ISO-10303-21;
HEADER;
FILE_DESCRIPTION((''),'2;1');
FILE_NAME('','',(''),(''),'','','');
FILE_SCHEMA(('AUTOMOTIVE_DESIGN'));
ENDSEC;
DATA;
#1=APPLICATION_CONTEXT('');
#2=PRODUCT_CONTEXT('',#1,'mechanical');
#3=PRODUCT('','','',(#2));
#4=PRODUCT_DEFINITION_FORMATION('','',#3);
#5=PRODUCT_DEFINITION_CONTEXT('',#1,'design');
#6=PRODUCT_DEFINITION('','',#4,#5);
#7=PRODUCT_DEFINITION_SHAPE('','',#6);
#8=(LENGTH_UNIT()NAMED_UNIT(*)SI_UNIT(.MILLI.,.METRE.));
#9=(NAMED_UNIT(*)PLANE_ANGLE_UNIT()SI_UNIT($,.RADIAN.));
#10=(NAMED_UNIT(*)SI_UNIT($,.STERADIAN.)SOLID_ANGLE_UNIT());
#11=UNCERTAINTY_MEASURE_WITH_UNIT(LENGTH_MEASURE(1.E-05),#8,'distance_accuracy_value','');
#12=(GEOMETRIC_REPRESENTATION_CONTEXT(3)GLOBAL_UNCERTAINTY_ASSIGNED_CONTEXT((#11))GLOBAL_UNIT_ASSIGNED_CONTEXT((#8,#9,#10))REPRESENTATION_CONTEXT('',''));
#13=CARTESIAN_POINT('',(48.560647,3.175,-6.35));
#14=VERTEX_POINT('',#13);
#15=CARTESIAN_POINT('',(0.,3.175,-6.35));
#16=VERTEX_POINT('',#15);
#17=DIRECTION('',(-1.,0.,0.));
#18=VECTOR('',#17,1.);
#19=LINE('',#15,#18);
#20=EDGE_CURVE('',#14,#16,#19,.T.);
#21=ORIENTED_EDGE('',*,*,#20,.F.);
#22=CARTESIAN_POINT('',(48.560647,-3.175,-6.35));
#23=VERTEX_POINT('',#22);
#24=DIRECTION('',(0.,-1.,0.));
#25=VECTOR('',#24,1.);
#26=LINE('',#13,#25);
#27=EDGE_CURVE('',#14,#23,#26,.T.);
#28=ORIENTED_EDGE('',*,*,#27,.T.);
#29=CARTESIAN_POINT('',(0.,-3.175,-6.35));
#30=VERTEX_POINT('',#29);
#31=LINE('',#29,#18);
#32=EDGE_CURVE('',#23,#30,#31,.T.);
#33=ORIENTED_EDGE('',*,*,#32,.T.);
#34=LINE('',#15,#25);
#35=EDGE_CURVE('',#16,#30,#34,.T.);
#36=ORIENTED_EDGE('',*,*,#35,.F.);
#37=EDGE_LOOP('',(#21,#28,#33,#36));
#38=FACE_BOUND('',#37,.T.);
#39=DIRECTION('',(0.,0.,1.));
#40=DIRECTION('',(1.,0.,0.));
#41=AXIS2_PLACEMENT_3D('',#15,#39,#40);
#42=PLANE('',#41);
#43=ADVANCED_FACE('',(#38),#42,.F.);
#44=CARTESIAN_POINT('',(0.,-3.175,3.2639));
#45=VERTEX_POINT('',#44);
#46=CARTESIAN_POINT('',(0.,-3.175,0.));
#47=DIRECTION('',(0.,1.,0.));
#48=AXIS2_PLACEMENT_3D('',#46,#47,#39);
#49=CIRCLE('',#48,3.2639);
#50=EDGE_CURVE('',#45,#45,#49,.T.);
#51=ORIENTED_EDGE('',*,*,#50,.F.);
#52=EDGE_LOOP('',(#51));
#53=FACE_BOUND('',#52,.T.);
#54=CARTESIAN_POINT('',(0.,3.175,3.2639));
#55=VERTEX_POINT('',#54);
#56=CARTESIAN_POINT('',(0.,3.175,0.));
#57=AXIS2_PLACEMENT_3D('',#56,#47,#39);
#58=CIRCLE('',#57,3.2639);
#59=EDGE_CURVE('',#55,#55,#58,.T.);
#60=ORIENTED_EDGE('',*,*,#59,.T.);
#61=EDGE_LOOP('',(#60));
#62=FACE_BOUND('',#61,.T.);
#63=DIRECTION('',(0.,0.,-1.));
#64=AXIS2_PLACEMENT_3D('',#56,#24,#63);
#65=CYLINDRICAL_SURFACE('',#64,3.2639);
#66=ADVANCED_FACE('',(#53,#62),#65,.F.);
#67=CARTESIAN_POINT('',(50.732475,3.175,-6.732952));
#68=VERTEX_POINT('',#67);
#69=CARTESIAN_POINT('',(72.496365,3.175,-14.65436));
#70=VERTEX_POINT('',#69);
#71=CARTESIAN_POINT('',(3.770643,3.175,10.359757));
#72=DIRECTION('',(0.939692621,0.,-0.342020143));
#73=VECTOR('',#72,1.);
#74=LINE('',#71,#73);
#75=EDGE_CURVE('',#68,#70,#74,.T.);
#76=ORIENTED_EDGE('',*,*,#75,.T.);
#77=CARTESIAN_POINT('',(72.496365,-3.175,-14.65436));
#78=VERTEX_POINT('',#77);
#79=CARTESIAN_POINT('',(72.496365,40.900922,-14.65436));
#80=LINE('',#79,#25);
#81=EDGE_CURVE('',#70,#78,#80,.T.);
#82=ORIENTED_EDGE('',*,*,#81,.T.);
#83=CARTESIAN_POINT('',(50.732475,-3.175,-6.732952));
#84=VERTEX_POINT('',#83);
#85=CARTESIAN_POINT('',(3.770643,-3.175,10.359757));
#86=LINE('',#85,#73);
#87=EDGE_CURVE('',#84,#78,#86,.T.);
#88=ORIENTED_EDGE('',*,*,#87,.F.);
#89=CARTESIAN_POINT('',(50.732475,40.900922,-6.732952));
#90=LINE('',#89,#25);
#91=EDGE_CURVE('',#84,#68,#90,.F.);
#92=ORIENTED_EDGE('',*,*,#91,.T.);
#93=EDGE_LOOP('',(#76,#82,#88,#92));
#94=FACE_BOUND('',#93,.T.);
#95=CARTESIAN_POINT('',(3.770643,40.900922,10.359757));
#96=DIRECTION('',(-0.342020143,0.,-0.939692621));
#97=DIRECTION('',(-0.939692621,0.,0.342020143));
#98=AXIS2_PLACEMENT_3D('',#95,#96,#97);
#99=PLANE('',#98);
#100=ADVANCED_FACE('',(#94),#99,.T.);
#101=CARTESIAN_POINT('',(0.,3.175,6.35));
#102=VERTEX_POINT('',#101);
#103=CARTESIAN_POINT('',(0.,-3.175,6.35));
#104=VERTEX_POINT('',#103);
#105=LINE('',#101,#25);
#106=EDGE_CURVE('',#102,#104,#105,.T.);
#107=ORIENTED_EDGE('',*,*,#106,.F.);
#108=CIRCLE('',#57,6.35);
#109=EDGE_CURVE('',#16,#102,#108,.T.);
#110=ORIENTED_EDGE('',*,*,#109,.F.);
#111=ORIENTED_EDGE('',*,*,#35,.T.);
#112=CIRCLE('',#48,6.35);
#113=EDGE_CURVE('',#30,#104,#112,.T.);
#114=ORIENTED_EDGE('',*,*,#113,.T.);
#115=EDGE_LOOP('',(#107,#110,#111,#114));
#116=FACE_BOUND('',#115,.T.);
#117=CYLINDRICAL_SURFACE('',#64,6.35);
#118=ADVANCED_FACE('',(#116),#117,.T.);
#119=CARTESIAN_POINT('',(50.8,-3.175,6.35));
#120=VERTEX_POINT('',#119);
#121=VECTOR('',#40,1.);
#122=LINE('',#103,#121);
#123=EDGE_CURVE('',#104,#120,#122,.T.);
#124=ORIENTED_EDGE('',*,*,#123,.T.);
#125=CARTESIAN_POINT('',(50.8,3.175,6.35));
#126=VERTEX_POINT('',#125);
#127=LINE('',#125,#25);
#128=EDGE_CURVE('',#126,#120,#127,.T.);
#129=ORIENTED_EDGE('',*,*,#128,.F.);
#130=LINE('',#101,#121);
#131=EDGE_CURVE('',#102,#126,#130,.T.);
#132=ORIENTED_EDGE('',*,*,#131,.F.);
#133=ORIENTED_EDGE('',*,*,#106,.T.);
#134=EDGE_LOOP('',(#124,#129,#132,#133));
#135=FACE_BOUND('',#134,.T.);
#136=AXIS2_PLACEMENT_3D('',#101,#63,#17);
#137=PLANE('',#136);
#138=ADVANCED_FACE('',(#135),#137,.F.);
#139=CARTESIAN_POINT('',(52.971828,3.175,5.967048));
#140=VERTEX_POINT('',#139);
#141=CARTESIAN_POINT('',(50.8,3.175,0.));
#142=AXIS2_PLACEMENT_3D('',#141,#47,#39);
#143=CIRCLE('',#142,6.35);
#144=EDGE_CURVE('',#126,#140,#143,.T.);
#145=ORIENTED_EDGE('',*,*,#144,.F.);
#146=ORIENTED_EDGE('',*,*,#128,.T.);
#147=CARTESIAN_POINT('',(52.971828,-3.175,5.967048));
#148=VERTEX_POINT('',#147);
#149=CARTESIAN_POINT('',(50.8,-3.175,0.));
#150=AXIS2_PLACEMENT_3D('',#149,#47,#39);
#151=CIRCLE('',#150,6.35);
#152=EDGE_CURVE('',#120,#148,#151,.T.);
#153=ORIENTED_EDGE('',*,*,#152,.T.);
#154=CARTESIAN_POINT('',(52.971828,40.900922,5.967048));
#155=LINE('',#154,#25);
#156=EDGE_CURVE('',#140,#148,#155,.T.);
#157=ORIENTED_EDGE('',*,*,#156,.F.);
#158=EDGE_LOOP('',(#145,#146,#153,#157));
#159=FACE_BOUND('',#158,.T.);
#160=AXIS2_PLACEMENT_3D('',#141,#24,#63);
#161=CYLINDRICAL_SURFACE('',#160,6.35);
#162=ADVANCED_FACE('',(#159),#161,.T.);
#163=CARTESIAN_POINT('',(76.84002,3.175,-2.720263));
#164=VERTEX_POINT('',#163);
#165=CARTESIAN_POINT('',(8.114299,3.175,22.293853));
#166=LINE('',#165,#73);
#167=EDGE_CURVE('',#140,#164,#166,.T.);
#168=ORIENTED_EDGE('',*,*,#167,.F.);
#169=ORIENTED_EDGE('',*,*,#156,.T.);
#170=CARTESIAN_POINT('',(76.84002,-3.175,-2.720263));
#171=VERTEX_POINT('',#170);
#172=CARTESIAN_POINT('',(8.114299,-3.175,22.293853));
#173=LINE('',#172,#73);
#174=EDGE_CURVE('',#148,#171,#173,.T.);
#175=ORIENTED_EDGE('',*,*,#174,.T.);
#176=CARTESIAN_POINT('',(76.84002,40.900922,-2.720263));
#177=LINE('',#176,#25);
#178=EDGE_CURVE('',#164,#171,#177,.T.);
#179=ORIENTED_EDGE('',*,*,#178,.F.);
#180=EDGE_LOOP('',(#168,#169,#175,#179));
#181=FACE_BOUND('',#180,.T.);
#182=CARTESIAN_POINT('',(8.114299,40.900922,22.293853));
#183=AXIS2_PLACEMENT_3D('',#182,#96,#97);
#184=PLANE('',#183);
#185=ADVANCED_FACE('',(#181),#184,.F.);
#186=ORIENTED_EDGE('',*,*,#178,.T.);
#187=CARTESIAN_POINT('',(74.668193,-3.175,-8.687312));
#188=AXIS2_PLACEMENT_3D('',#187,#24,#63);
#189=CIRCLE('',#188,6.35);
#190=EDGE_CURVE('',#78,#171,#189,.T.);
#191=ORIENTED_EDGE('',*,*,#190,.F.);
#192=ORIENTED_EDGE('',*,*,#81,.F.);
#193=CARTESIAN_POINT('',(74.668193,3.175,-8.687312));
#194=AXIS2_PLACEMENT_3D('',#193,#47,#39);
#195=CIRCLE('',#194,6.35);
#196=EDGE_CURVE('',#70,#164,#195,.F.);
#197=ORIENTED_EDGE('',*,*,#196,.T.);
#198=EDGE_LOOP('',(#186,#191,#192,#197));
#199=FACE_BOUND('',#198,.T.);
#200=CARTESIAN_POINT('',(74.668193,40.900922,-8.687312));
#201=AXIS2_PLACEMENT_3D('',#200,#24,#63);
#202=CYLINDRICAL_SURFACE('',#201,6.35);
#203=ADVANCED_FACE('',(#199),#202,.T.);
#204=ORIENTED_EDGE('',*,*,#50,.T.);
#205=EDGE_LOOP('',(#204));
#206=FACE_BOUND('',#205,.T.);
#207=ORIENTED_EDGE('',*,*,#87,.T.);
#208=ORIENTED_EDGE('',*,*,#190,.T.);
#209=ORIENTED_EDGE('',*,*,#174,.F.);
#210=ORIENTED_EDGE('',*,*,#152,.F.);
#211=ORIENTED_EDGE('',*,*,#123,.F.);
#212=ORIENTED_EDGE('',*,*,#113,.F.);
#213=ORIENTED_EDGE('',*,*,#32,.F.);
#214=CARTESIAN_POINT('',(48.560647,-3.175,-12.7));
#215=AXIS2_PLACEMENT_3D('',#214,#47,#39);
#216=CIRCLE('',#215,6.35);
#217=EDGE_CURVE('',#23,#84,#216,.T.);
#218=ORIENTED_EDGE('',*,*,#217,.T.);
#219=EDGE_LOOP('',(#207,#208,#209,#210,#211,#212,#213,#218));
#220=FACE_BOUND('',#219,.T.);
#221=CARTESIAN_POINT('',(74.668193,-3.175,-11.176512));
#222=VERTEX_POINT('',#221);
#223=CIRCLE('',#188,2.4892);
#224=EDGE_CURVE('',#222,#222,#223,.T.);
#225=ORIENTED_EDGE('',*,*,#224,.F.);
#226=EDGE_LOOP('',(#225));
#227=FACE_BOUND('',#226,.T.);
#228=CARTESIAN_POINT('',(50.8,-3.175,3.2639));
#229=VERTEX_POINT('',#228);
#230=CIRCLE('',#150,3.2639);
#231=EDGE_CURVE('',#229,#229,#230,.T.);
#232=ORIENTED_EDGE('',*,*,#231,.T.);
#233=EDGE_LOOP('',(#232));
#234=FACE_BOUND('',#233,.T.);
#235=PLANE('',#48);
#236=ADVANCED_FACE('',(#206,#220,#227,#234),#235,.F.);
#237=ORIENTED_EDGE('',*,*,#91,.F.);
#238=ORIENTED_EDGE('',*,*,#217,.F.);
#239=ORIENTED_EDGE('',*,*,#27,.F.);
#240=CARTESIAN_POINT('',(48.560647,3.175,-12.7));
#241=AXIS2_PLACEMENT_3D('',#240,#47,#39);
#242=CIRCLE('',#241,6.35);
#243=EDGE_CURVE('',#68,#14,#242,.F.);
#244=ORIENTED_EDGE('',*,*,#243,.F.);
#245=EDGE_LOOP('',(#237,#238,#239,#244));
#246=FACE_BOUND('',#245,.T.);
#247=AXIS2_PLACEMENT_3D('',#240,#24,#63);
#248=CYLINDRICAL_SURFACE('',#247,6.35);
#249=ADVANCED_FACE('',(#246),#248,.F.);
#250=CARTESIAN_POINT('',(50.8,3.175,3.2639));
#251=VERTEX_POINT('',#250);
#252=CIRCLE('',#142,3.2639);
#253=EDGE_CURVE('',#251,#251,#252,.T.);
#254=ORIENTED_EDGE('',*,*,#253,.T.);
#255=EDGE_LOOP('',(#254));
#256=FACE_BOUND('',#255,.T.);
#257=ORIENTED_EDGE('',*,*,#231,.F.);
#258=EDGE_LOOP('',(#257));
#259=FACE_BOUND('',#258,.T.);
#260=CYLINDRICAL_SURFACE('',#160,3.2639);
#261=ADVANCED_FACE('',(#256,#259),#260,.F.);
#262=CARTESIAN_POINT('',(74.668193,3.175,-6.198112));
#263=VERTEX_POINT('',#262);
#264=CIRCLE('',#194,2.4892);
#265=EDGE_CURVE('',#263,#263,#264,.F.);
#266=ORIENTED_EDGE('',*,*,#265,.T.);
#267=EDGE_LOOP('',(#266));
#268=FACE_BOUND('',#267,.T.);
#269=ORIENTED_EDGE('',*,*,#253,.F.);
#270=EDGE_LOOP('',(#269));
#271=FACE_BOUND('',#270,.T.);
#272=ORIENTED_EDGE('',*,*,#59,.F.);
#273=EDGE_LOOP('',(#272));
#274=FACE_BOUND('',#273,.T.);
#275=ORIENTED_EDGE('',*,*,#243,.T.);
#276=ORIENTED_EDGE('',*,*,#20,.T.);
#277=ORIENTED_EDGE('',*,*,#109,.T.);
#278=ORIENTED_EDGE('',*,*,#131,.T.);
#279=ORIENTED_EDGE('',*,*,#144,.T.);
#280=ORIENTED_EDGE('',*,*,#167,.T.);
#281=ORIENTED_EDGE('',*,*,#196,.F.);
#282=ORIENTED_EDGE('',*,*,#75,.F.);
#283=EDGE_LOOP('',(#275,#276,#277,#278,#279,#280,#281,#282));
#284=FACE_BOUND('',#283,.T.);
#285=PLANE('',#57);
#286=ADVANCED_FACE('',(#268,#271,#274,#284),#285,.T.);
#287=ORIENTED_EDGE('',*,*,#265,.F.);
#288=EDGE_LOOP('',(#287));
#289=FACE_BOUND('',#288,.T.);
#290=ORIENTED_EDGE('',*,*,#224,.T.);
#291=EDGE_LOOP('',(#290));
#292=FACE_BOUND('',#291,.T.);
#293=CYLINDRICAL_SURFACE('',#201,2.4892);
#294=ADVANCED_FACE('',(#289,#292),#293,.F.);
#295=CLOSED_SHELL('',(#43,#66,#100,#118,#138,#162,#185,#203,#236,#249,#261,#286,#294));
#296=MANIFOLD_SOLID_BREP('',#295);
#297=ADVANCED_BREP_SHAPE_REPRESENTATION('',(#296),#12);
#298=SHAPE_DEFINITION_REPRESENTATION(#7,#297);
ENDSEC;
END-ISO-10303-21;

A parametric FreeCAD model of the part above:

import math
import FreeCAD as App
import Part
import Sketcher

V = App.Vector
Q = App.Units.Quantity


def edges_at(feature, points):
    """Names of the edges that pass closest to the given points."""
    edges = feature.Shape.Edges
    near = lambda p: min(range(len(edges)), key=lambda i: edges[i].distToShape(Part.Vertex(*p))[0])
    return sorted({f"Edge{near(p) + 1}" for p in points})

doc = App.newDocument("Part")
body = doc.addObject("PartDesign::Body", "Body")

# Sketch on XZ plane
sketch1 = body.newObject("Sketcher::SketchObject", "Sketch")
sketch1.AttachmentSupport = (doc.getObject("XZ_Plane"), [""])
sketch1.MapMode = "FlatFace"
sketch1.addGeometry(Part.LineSegment(V(50.8, -6.3, 0), V(0, -6.3, 0)), False)
sketch1.addGeometry(Part.ArcOfCircle(Part.Circle(V(0, 0, 0), V(0, 0, 1), 6.3), math.radians(90), math.radians(270)), False)
sketch1.addGeometry(Part.LineSegment(V(0, 6.3, 0), V(50.8, 6.3, 0)), False)
sketch1.addGeometry(Part.ArcOfCircle(Part.Circle(V(50.8, 0, 0), V(0, 0, 1), 6.3), math.radians(-90), math.radians(90)), False)
sketch1.addGeometry(Part.Circle(V(50.8, 0, 0), V(0, 0, 1), 3.3), False)
sketch1.addGeometry(Part.Circle(V(0, 0, 0), V(0, 0, 1), 3.3), False)
sketch1.addConstraint(Sketcher.Constraint("Tangent", 0, 2, 1, 2))
sketch1.addConstraint(Sketcher.Constraint("Tangent", 1, 1, 2, 1))
sketch1.addConstraint(Sketcher.Constraint("Tangent", 2, 2, 3, 2))
sketch1.addConstraint(Sketcher.Constraint("Tangent", 3, 1, 0, 1))
sketch1.addConstraint(Sketcher.Constraint("Horizontal", 0))
sketch1.addConstraint(Sketcher.Constraint("Horizontal", 2))
sketch1.addConstraint(Sketcher.Constraint("Coincident", 1, 3, -1, 1))
sketch1.addConstraint(Sketcher.Constraint("Coincident", 5, 3, -1, 1))
sketch1.addConstraint(Sketcher.Constraint("Coincident", 4, 3, 3, 3))
sketch1.addConstraint(Sketcher.Constraint("Equal", 4, 5))
sketch1.addConstraint(Sketcher.Constraint("DistanceX", 0, 2, 0, 1, Q("2 in")))
sketch1.addConstraint(Sketcher.Constraint("Radius", 1, Q("0.25 in")))
sketch1.addConstraint(Sketcher.Constraint("Diameter", 4, Q("0.257 in")))
pad1 = body.newObject("PartDesign::Pad", "Pad")
pad1.Profile = sketch1
pad1.Length = Q("0.25 in")
pad1.Midplane = True

# Sketch on XZ plane
sketch2 = body.newObject("Sketcher::SketchObject", "Sketch001")
sketch2.AttachmentSupport = (doc.getObject("XZ_Plane"), [""])
sketch2.MapMode = "FlatFace"
sketch2.AttachmentOffset = App.Placement(V(0, 0, -0.125 * 25.4), App.Rotation())
sketch2.addGeometry(Part.LineSegment(V(76.8, -2.7, 0), V(53, 6, 0)), False)
sketch2.addGeometry(Part.ArcOfCircle(Part.Circle(V(50.8, 0, 0), V(0, 0, 1), 6.3), math.radians(-90), math.radians(70)), False)
sketch2.addGeometry(Part.LineSegment(V(50.8, -6.3, 0), V(49.7, -6.3, 0)), False)
sketch2.addGeometry(Part.LineSegment(V(49.7, -6.3, 0), V(72.5, -14.7, 0)), False)
sketch2.addGeometry(Part.ArcOfCircle(Part.Circle(V(74.7, -8.7, 0), V(0, 0, 1), 6.3), math.radians(-110), math.radians(70)), False)
sketch2.addGeometry(Part.Circle(V(74.7, -8.7, 0), V(0, 0, 1), 2.5), False)
sketch2.addConstraint(Sketcher.Constraint("Tangent", 0, 2, 1, 2))
sketch2.addConstraint(Sketcher.Constraint("Tangent", 1, 1, 2, 1))
sketch2.addConstraint(Sketcher.Constraint("Coincident", 2, 2, 3, 1))
sketch2.addConstraint(Sketcher.Constraint("Tangent", 3, 2, 4, 1))
sketch2.addConstraint(Sketcher.Constraint("Tangent", 4, 2, 0, 1))
sketch2.addConstraint(Sketcher.Constraint("Horizontal", 2))
sketch2.addConstraint(Sketcher.Constraint("Coincident", 5, 3, 4, 3))
sketch2.addConstraint(Sketcher.Constraint("Equal", 1, 4))
sketch2.addConstraint(Sketcher.Constraint("PointOnObject", 1, 3, -1))
sketch2.addConstraint(Sketcher.Constraint("Parallel", 0, 3))
sketch2.addConstraint(Sketcher.Constraint("Radius", 1, Q("0.25 in")))
sketch2.addConstraint(Sketcher.Constraint("Distance", 0, Q("1 in")))
sketch2.addConstraint(Sketcher.Constraint("Diameter", 5, Q("0.196 in")))
sketch2.addConstraint(Sketcher.Constraint("DistanceX", -1, 1, 1, 3, Q("2 in")))
sketch2.addConstraint(Sketcher.Constraint("Angle", 0, Q("160 deg")))
pad2 = body.newObject("PartDesign::Pad", "Pad001")
pad2.Profile = sketch2
pad2.Length = Q("0.25 in")
doc.recompute()

fillet = body.newObject("PartDesign::Fillet", "Fillet")
fillet.Base = (pad2, edges_at(pad2, [(49.68, 0, -6.35)]))
fillet.Radius = Q("0.25 in")

doc.recompute()
